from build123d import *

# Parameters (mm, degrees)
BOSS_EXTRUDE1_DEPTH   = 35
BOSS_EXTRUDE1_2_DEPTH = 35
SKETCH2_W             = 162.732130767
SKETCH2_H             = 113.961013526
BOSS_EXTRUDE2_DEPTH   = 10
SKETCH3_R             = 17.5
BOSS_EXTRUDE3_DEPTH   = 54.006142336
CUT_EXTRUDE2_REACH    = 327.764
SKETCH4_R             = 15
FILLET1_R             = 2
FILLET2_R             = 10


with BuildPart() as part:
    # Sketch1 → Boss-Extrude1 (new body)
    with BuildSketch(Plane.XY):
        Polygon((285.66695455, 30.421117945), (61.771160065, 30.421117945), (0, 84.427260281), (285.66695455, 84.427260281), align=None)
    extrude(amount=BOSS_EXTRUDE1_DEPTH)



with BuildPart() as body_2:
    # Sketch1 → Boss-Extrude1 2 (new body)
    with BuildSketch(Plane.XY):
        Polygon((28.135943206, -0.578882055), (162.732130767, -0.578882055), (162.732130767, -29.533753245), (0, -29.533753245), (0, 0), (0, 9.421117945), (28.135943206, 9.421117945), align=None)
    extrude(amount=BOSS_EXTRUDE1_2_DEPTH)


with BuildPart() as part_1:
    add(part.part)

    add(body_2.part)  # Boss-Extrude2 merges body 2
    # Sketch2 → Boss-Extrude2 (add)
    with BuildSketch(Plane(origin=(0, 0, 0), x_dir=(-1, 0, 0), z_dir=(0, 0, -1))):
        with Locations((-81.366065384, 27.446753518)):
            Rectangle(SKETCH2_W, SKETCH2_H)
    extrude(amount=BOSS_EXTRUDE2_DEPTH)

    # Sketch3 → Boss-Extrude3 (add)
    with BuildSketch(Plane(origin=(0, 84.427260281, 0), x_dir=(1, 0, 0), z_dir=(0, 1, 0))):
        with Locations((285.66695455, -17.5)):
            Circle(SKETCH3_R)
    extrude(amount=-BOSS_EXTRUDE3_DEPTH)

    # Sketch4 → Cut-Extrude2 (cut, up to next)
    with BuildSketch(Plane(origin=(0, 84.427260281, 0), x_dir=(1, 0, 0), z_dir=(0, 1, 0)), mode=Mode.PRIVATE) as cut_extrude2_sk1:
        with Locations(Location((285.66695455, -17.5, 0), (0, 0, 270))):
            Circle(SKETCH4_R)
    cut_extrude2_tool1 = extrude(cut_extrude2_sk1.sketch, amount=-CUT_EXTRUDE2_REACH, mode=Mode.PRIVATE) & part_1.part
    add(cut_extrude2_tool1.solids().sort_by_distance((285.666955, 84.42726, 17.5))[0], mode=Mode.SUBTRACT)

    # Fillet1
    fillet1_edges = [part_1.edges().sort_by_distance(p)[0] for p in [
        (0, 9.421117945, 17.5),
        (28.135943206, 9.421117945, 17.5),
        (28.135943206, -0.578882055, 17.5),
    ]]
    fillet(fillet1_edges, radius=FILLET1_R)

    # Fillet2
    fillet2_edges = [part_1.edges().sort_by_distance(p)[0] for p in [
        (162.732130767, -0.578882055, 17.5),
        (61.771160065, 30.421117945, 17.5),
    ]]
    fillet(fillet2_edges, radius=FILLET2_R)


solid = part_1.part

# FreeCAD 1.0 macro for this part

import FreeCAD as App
import Part
import Sketcher
Q = App.Units.Quantity


def edges_at(feature, points):
    """Names of the edges that pass closest to the given points."""
    edges = feature.Shape.Edges
    near = lambda p: min(range(len(edges)), key=lambda i: edges[i].distToShape(Part.Vertex(*p))[0])
    return sorted({f"Edge{near(p) + 1}" for p in points})


def add_polygon(sketch, points):
    """Adds a closed chain of lines whose ends are joined by coincident constraints."""
    first, n = sketch.GeometryCount, len(points)
    for a, b in zip(points, points[1:] + points[:1]):
        sketch.addGeometry(Part.LineSegment(App.Vector(*a, 0), App.Vector(*b, 0)), False)
    for i in range(n):
        sketch.addConstraint(Sketcher.Constraint("Coincident", first + i, 2, first + (i + 1) % n, 1))

doc = App.newDocument("Part")
body = doc.addObject("PartDesign::Body", "Body")

sketch1 = doc.addObject("Sketcher::SketchObject", "Sketch")
body.addObject(sketch1)
sketch1.AttachmentSupport = (doc.XY_Plane, [""])
sketch1.MapMode = "FlatFace"
add_polygon(sketch1, [(61.77116, 30.421118), (285.666955, 30.421118), (285.666955, 84.42726), (0, 84.42726)])
sketch1.addConstraint(Sketcher.Constraint("Horizontal", 0))
sketch1.addConstraint(Sketcher.Constraint("Vertical", 1))
sketch1.addConstraint(Sketcher.Constraint("Horizontal", 2))
sketch1.addConstraint(Sketcher.Constraint("PointOnObject", 2, 2, -2))
sketch1.addConstraint(Sketcher.Constraint("DistanceX", 0, 1, 0, 2, Q("223.895794 mm")))
sketch1.addConstraint(Sketcher.Constraint("DistanceX", 2, 2, 2, 1, Q("285.666955 mm")))
sketch1.addConstraint(Sketcher.Constraint("DistanceY", 1, 1, 1, 2, Q("54.006142 mm")))
sketch1.addConstraint(Sketcher.Constraint("DistanceY", -1, 1, 1, 2, Q("84.42726 mm")))
pad1 = doc.addObject("PartDesign::Pad", "Pad")
body.addObject(pad1)
pad1.Profile = sketch1
pad1.Length = 35
body2 = doc.addObject("PartDesign::Body", "Body001")

sketch2 = doc.addObject("Sketcher::SketchObject", "Sketch001")
body2.addObject(sketch2)
sketch2.AttachmentSupport = (doc.getObject("XY_Plane001"), [""])
sketch2.MapMode = "FlatFace"
add_polygon(sketch2, [(162.732131, -0.578882), (28.135943, -0.578882), (28.135943, 9.421118), (0, 9.421118), (0, -29.533753), (162.732131, -29.533753)])
sketch2.addConstraint(Sketcher.Constraint("Horizontal", 0))
sketch2.addConstraint(Sketcher.Constraint("Vertical", 1))
sketch2.addConstraint(Sketcher.Constraint("Horizontal", 2))
sketch2.addConstraint(Sketcher.Constraint("Vertical", 3))
sketch2.addConstraint(Sketcher.Constraint("Horizontal", 4))
sketch2.addConstraint(Sketcher.Constraint("Vertical", 5))
sketch2.addConstraint(Sketcher.Constraint("PointOnObject", 2, 2, -2))
sketch2.addConstraint(Sketcher.Constraint("DistanceY", 1, 1, 1, 2, Q("10 mm")))
sketch2.addConstraint(Sketcher.Constraint("DistanceX", 4, 1, 4, 2, Q("162.732131 mm")))
sketch2.addConstraint(Sketcher.Constraint("DistanceY", 3, 2, 3, 1, Q("38.954871 mm")))
sketch2.addConstraint(Sketcher.Constraint("DistanceX", 0, 2, 0, 1, Q("134.596188 mm")))
sketch2.addConstraint(Sketcher.Constraint("DistanceY", 0, 2, -1, 1, Q("0.578882 mm")))
pad2 = doc.addObject("PartDesign::Pad", "Pad001")
body2.addObject(pad2)
pad2.Profile = sketch2
pad2.Length = 35
body.AllowCompound = True
doc.recompute()

boolean = doc.addObject("PartDesign::Boolean", "Boolean")
body.addObject(boolean)
boolean.Type = "Fuse"
boolean.addObjects([body2])

sketch3 = doc.addObject("Sketcher::SketchObject", "Sketch002")
body.addObject(sketch3)
sketch3.AttachmentSupport = (doc.XY_Plane, [""])
sketch3.MapMode = "FlatFace"
add_polygon(sketch3, [(162.732131, 84.42726), (162.732131, -29.533753), (0, -29.533753), (0, 84.42726)])
sketch3.addConstraint(Sketcher.Constraint("Vertical", 0))
sketch3.addConstraint(Sketcher.Constraint("Horizontal", 1))
sketch3.addConstraint(Sketcher.Constraint("Vertical", 2))
sketch3.addConstraint(Sketcher.Constraint("Horizontal", 3))
sketch3.addConstraint(Sketcher.Constraint("PointOnObject", 1, 2, -2))
sketch3.addConstraint(Sketcher.Constraint("DistanceX", 1, 2, 1, 1, Q("162.732131 mm")))
sketch3.addConstraint(Sketcher.Constraint("DistanceY", 0, 2, 0, 1, Q("113.961014 mm")))
sketch3.addConstraint(Sketcher.Constraint("DistanceY", -1, 1, 2, 2, Q("84.42726 mm")))
pad3 = doc.addObject("PartDesign::Pad", "Pad002")
body.addObject(pad3)
pad3.Profile = sketch3
pad3.Length = 10
pad3.Reversed = True

sketch4 = doc.addObject("Sketcher::SketchObject", "Sketch003")
body.addObject(sketch4)
sketch4.AttachmentSupport = (doc.XZ_Plane, [""])
sketch4.MapMode = "FlatFace"
sketch4.AttachmentOffset = App.Placement(App.Vector(0, 0, -84.42726), App.Rotation())
sketch4.addGeometry(Part.Circle(App.Vector(285.666955, 17.5, 0), App.Vector(0, 0, 1), 17.5), False)
sketch4.addConstraint(Sketcher.Constraint("Diameter", 0, Q("35 mm")))
sketch4.addConstraint(Sketcher.Constraint("DistanceY", -1, 1, 0, 3, Q("17.5 mm")))
sketch4.addConstraint(Sketcher.Constraint("DistanceX", -1, 1, 0, 3, Q("285.666955 mm")))
pad4 = doc.addObject("PartDesign::Pad", "Pad003")
body.addObject(pad4)
pad4.Profile = sketch4
pad4.Length = 54.006142

sketch5 = doc.addObject("Sketcher::SketchObject", "Sketch004")
body.addObject(sketch5)
sketch5.AttachmentSupport = (doc.XZ_Plane, [""])
sketch5.MapMode = "FlatFace"
sketch5.AttachmentOffset = App.Placement(App.Vector(0, 0, -84.42726), App.Rotation())
sketch5.addGeometry(Part.Circle(App.Vector(285.666955, 17.5, 0), App.Vector(0, 0, 1), 15), False)
sketch5.addConstraint(Sketcher.Constraint("Diameter", 0, Q("30 mm")))
sketch5.addConstraint(Sketcher.Constraint("DistanceY", -1, 1, 0, 3, Q("17.5 mm")))
sketch5.addConstraint(Sketcher.Constraint("DistanceX", -1, 1, 0, 3, Q("285.666955 mm")))
pocket1 = doc.addObject("PartDesign::Pocket", "Pocket")
body.addObject(pocket1)
pocket1.Profile = sketch5
pocket1.Type = "UpToFirst"
pocket1.Reversed = True
doc.recompute()

fillet = doc.addObject("PartDesign::Fillet", "Fillet")
body.addObject(fillet)
fillet.Base = (pocket1, edges_at(pocket1, [(0, 9.421, 17.5), (28.136, 9.421, 17.5), (28.136, -0.579, 17.5)]))
fillet.Radius = 2
doc.recompute()

fillet2 = doc.addObject("PartDesign::Fillet", "Fillet001")
body.addObject(fillet2)
fillet2.Base = (fillet, edges_at(fillet, [(162.732, -0.579, 17.5), (61.771, 30.421, 17.5)]))
fillet2.Radius = 10

doc.recompute()
